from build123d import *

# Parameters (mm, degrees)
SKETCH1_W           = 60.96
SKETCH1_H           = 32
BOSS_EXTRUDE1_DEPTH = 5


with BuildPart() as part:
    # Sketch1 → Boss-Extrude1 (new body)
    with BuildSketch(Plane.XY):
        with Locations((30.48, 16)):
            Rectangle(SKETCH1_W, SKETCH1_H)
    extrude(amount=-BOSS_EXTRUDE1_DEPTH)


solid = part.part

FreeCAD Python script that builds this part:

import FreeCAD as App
import Part
import Sketcher
from FreeCAD import Vector

doc = App.newDocument("Part")
body = doc.addObject("PartDesign::Body", "Body")

# Sketch on XY plane
sketch1 = body.newObject("Sketcher::SketchObject", "Sketch")
sketch1.AttachmentSupport = (doc.getObject("XY_Plane"), [""])
sketch1.MapMode = "FlatFace"
sketch1.addGeometry([
    Part.LineSegment(Vector(0, 32, 0), Vector(0, 0, 0)),
    Part.LineSegment(Vector(0, 0, 0), Vector(60.96, 0, 0)),
    Part.LineSegment(Vector(60.96, 0, 0), Vector(60.96, 32, 0)),
    Part.LineSegment(Vector(60.96, 32, 0), Vector(0, 32, 0)),
], False)
sketch1.addConstraint([
    Sketcher.Constraint("Coincident", 0, 2, 1, 1),
    Sketcher.Constraint("Coincident", 1, 2, 2, 1),
    Sketcher.Constraint("Coincident", 2, 2, 3, 1),
    Sketcher.Constraint("Coincident", 3, 2, 0, 1),
    Sketcher.Constraint("Vertical", 0),
    Sketcher.Constraint("Horizontal", 1),
    Sketcher.Constraint("Vertical", 2),
    Sketcher.Constraint("Horizontal", 3),
    Sketcher.Constraint("Coincident", 0, 2, -1, 1),
    Sketcher.Constraint("DistanceY", 0, 2, 0, 1, 32.0),
    Sketcher.Constraint("DistanceX", 1, 1, 1, 2, 60.96),
])
pad1 = body.newObject("PartDesign::Pad", "Pad")
pad1.Profile = sketch1
pad1.Length = 5
pad1.Reversed = True

doc.recompute()
